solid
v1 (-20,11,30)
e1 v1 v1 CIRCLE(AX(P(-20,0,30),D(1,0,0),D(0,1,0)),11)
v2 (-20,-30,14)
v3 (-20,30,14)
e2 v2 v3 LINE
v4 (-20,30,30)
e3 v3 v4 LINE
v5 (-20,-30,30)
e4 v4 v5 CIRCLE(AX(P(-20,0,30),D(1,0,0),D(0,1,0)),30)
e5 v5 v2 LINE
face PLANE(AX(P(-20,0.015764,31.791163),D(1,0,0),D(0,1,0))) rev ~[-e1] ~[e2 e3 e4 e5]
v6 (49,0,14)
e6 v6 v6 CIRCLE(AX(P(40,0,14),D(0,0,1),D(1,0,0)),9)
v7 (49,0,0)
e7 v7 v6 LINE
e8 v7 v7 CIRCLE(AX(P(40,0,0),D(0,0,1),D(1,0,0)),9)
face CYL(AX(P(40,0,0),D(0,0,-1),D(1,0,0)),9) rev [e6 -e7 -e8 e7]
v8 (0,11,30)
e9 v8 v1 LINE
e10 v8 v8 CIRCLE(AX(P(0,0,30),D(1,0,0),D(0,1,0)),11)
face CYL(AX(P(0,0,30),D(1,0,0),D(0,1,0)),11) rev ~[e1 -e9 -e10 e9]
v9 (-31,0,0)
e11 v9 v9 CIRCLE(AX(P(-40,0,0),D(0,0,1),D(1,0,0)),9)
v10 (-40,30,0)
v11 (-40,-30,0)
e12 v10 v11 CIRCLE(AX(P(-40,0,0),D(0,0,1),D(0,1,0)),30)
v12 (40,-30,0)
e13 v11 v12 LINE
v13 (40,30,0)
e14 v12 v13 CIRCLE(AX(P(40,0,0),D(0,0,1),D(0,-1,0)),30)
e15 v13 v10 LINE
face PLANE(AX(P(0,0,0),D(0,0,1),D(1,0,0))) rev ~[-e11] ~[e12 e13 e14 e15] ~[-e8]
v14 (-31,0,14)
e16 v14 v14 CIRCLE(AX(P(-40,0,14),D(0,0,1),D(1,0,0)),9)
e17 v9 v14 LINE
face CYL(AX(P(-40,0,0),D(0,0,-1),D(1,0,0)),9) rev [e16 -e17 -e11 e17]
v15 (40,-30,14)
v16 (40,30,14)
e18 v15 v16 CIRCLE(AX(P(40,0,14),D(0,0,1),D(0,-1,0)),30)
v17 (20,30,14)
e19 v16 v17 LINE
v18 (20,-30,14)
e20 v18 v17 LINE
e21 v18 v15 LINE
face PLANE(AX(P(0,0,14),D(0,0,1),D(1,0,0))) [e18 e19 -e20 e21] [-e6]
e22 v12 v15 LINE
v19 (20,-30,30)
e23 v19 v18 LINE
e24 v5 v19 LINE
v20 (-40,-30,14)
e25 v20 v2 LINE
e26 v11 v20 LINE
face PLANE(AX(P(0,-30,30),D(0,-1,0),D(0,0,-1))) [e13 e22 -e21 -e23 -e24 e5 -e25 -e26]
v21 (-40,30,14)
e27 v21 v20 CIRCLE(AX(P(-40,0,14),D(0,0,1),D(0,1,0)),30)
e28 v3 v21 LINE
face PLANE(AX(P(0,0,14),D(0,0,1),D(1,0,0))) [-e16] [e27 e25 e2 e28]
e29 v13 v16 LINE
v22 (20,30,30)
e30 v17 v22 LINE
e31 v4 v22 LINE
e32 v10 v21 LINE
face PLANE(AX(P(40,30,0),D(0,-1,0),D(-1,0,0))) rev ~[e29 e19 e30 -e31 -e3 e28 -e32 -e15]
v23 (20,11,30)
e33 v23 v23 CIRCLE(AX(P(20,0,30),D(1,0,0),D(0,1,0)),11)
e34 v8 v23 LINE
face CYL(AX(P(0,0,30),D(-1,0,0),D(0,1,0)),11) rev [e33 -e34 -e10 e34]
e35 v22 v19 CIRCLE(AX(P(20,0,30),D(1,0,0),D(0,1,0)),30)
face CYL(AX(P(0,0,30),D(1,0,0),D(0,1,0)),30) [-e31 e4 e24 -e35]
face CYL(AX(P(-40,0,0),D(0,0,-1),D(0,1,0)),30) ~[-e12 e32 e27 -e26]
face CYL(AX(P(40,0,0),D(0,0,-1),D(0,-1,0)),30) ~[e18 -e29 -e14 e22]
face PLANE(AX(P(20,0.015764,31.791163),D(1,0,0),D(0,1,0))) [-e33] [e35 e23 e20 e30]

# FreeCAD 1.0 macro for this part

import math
import FreeCAD as App
import Part
import Sketcher

V = App.Vector

doc = App.newDocument("Part")
params = doc.addObject("Spreadsheet::Sheet", "Params")
for row, (alias, value) in enumerate([
    ("sketch1_diameter", "18 mm"),
    ("sketch1_radius", "30 mm"),
    ("sketch1_width", "80 mm"),
    ("pad1_length", "14 mm"),
    ("sketch2_diameter", "22 mm"),
    ("sketch2_radius", "30 mm"),
    ("pad2_length", "20 mm"),
    ("pad2_length2", "20 mm"),
], start=1):
    params.set(f"A{row}", alias)
    params.set(f"B{row}", "=" + value)
    params.setAlias(f"B{row}", alias)

body = doc.addObject("PartDesign::Body", "Body")

# Sketch on XY plane
sketch1 = body.newObject("Sketcher::SketchObject", "Sketch")
sketch1.AttachmentSupport = (doc.getObject("XY_Plane"), [""])
sketch1.MapMode = "FlatFace"
sketch1.addGeometry([
    Part.LineSegment(V(40, 30, 0), V(-40, 30, 0)),  # 0
    Part.ArcOfCircle(Part.Circle(V(-40, 0, 0), V(0, 0, 1), 30), math.radians(90), math.radians(270)),  # 1
    Part.LineSegment(V(-40, -30, 0), V(40, -30, 0)),  # 2
    Part.ArcOfCircle(Part.Circle(V(40, 0, 0), V(0, 0, 1), 30), math.radians(-90), math.radians(90)),  # 3
    Part.Circle(V(-40, 0, 0), V(0, 0, 1), 9),  # 4
    Part.Circle(V(40, 0, 0), V(0, 0, 1), 9),  # 5
], False)
sketch1.addConstraint([
    Sketcher.Constraint("Tangent", 0, 2, 1, 1),
    Sketcher.Constraint("Tangent", 1, 2, 2, 1),
    Sketcher.Constraint("Tangent", 2, 2, 3, 1),
    Sketcher.Constraint("Tangent", 3, 2, 0, 1),
    Sketcher.Constraint("Horizontal", 0),
    Sketcher.Constraint("Horizontal", 2),
    Sketcher.Constraint("Coincident", 4, 3, 1, 3),
    Sketcher.Constraint("Coincident", 5, 3, 3, 3),
    Sketcher.Constraint("Equal", 4, 5),
    Sketcher.Constraint("Symmetric", 1, 3, 3, 3, -1, 1),
    Sketcher.Constraint("Diameter", 4, 18.0),
    Sketcher.Constraint("Radius", 1, 30.0),
    Sketcher.Constraint("DistanceX", 0, 2, 0, 1, 80.0),
])
sketch1.setExpression("Constraints[10]", "Params.sketch1_diameter")
sketch1.setExpression("Constraints[11]", "Params.sketch1_radius")
sketch1.setExpression("Constraints[12]", "Params.sketch1_width")
pad1 = body.newObject("PartDesign::Pad", "Pad")
pad1.Profile = sketch1
pad1.setExpression("Length", "Params.pad1_length")

# Sketch on YZ plane
sketch2 = body.newObject("Sketcher::SketchObject", "Sketch001")
sketch2.AttachmentSupport = (doc.getObject("YZ_Plane"), [""])
sketch2.MapMode = "FlatFace"
sketch2.addGeometry([
    Part.LineSegment(V(30, 14, 0), V(30, 30, 0)),  # 0
    Part.ArcOfCircle(Part.Circle(V(0, 30, 0), V(0, 0, 1), 30), math.radians(0), math.radians(180)),  # 1
    Part.LineSegment(V(-30, 30, 0), V(-30, 14, 0)),  # 2
    Part.LineSegment(V(-30, 14, 0), V(30, 14, 0)),  # 3
    Part.Circle(V(0, 30, 0), V(0, 0, 1), 11),  # 4
], False)
sketch2.addConstraint([
    Sketcher.Constraint("Tangent", 0, 2, 1, 1),
    Sketcher.Constraint("Tangent", 1, 2, 2, 1),
    Sketcher.Constraint("Coincident", 2, 2, 3, 1),
    Sketcher.Constraint("Coincident", 3, 2, 0, 1),
    Sketcher.Constraint("Vertical", 0),
    Sketcher.Constraint("Vertical", 2),
    Sketcher.Constraint("Coincident", 4, 3, 1, 3),
    Sketcher.Constraint("PointOnObject", 1, 3, -2),
    Sketcher.Constraint("Diameter", 4, 22.0),
    Sketcher.Constraint("Radius", 1, 30.0),
    Sketcher.Constraint("DistanceY", -1, 1, 1, 3, 30.0),
    Sketcher.Constraint("DistanceY", 0, 1, 0, 2, 16.223879),
    Sketcher.Constraint("DistanceY", 2, 2, 2, 1, 16.128058),
])
sketch2.setExpression("Constraints[8]", "Params.sketch2_diameter")
sketch2.setExpression("Constraints[9]", "Params.sketch2_radius")
pad2 = body.newObject("PartDesign::Pad", "Pad001")
pad2.Profile = sketch2
pad2.Type = "TwoLengths"
pad2.setExpression("Length", "Params.pad2_length")
pad2.setExpression("Length2", "Params.pad2_length2")

doc.recompute()
